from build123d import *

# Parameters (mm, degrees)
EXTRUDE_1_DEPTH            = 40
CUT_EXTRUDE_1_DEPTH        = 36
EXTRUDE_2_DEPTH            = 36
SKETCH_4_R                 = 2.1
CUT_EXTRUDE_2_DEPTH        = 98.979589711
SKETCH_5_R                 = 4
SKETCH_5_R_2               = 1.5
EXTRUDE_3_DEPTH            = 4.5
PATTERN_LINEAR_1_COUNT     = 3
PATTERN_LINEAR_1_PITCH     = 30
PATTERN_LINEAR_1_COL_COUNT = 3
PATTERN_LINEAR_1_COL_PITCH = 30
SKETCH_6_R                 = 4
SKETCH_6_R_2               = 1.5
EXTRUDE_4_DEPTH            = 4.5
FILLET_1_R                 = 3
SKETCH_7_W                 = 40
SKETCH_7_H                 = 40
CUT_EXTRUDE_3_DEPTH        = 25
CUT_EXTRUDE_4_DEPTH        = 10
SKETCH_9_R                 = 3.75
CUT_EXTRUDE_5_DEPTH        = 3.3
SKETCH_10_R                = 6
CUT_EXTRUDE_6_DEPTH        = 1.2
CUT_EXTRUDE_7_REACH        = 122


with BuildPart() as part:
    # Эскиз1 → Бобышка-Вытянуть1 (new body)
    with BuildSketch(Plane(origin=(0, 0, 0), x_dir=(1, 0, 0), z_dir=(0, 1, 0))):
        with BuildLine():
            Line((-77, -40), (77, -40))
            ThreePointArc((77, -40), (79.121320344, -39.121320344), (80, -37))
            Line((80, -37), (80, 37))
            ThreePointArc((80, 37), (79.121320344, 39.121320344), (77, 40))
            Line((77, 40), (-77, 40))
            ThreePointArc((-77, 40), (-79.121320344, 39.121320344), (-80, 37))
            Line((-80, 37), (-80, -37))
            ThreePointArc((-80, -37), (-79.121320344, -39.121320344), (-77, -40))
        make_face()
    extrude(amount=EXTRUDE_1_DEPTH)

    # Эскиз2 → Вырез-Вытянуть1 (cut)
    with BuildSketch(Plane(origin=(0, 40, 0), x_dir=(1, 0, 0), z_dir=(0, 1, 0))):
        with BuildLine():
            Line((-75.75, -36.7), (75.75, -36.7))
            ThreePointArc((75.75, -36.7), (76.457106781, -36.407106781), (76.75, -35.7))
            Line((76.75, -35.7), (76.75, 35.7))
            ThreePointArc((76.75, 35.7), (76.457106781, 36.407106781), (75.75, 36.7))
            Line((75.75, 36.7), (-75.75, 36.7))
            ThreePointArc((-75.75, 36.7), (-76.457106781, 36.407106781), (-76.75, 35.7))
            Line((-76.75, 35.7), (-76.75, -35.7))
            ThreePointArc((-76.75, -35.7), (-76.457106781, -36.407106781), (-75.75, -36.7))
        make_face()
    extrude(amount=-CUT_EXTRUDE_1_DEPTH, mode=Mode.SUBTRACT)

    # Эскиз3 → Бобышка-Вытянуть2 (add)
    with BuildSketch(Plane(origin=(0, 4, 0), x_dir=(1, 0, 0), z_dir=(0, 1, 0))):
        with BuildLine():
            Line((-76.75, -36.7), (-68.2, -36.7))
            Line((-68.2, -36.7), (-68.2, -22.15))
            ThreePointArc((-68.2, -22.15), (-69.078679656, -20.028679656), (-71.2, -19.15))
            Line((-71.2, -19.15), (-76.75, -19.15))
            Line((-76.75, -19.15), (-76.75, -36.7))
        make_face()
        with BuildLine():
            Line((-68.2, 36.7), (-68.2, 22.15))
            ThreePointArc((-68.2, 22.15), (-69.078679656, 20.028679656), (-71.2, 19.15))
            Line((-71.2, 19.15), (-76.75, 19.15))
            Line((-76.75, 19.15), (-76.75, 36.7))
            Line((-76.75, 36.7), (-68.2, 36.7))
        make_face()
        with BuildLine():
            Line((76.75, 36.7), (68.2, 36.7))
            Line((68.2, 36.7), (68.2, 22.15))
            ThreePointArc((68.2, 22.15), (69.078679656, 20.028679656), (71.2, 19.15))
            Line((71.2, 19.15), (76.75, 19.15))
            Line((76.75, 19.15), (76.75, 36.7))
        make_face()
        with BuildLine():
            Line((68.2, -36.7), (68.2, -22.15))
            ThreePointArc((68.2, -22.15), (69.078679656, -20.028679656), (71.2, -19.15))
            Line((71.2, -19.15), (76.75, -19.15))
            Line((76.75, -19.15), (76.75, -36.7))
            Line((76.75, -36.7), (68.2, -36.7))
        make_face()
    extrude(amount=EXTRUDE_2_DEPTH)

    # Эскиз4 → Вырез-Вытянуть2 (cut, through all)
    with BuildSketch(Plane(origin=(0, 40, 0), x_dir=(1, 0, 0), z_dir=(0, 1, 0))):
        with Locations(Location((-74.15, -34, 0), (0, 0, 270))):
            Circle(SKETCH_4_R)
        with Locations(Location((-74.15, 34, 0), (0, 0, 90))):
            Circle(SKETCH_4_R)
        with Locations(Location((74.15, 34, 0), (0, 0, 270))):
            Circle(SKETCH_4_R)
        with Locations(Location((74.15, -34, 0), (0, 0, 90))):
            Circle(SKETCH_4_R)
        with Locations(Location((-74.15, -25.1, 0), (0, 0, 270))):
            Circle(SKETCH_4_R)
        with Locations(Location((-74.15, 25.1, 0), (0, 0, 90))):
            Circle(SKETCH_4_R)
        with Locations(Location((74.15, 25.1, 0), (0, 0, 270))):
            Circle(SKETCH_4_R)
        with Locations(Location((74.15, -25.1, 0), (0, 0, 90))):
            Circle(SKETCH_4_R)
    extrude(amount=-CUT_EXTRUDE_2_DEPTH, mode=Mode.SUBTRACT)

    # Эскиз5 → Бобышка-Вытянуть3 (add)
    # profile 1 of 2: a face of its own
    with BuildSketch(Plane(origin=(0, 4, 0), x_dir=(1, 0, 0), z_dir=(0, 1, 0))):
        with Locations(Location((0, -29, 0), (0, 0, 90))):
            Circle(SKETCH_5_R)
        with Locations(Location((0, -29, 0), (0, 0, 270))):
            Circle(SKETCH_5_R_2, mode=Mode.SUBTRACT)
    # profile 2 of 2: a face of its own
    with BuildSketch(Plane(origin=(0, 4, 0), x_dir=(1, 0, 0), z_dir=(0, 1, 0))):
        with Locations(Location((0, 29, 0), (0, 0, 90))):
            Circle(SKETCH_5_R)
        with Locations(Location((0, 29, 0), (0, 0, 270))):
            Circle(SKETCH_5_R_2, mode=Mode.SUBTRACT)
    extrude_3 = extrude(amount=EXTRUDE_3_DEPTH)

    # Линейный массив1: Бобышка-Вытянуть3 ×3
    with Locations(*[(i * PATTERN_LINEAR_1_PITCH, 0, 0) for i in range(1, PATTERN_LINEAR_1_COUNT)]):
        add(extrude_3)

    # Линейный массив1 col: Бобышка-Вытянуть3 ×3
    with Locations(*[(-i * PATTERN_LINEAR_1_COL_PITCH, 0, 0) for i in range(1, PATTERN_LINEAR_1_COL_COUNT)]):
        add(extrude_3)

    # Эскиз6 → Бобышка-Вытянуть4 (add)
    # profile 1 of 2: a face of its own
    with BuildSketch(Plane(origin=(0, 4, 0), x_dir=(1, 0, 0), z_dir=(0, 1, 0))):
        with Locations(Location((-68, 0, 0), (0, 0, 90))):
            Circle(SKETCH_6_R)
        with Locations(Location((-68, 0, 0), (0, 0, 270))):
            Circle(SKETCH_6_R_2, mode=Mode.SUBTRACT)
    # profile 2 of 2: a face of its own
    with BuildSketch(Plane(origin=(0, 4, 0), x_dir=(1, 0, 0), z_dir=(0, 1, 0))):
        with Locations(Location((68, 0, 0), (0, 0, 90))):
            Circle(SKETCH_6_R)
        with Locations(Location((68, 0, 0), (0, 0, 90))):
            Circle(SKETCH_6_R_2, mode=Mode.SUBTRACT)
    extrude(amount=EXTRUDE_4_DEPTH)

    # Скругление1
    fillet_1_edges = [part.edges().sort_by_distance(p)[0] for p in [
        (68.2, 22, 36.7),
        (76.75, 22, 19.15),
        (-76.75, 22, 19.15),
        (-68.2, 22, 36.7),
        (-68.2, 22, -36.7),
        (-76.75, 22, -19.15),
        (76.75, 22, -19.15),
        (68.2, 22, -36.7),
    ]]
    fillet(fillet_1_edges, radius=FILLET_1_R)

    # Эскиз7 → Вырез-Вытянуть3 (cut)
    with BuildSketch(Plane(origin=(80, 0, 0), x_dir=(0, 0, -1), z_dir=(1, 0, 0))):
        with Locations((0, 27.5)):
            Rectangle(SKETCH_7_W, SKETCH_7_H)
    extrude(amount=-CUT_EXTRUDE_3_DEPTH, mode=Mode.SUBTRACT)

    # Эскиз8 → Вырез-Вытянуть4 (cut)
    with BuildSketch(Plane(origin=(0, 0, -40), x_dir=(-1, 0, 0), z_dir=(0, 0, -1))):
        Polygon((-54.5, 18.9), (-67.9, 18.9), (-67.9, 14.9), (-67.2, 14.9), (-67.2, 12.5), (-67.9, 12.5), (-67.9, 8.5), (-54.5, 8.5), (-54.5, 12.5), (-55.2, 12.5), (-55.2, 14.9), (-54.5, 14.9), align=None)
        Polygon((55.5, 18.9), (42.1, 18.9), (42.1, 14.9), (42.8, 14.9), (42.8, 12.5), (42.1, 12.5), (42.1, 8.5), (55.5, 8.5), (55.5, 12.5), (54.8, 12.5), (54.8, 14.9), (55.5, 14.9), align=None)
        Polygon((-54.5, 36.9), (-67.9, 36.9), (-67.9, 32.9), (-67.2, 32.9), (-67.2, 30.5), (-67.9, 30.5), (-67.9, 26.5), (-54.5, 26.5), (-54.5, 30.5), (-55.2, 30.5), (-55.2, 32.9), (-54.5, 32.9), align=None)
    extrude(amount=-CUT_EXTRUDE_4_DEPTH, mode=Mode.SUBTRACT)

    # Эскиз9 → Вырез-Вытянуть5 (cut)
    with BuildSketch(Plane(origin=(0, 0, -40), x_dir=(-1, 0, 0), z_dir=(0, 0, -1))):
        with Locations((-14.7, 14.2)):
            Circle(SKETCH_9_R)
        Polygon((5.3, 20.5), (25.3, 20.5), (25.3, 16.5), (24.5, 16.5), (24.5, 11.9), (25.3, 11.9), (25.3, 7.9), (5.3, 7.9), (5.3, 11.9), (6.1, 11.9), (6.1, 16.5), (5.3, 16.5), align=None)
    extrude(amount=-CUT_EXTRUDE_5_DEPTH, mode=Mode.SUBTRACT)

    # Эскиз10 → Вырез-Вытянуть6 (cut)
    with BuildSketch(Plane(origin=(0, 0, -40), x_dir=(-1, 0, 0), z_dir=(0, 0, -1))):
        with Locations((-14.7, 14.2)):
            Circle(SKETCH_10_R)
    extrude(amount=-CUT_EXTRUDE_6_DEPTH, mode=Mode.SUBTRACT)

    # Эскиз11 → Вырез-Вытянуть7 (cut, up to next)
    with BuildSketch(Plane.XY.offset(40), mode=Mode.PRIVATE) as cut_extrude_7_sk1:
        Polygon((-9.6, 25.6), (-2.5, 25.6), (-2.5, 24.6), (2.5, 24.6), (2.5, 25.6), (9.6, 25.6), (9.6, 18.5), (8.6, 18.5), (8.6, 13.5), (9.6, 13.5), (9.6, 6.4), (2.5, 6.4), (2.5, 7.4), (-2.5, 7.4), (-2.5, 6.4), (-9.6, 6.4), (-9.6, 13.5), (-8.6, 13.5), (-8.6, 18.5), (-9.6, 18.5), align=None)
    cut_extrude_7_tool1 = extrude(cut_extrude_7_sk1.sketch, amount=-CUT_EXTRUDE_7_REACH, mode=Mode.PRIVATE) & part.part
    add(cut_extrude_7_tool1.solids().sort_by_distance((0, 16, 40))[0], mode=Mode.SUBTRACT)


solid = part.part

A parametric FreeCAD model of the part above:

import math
import FreeCAD as App
import Part
import Sketcher
from FreeCAD import Vector


def edges_at(feature, points):
    """Names of the edges that pass closest to the given points."""
    edges = feature.Shape.Edges
    near = lambda p: min(range(len(edges)), key=lambda i: edges[i].distToShape(Part.Vertex(*p))[0])
    return sorted({f"Edge{near(p) + 1}" for p in points})


def add_polygon(sketch, points):
    """Adds a closed chain of lines whose ends are joined by coincident constraints."""
    first, n = sketch.GeometryCount, len(points)
    for a, b in zip(points, points[1:] + points[:1]):
        sketch.addGeometry(Part.LineSegment(App.Vector(*a, 0), App.Vector(*b, 0)), False)
    for i in range(n):
        sketch.addConstraint(Sketcher.Constraint("Coincident", first + i, 2, first + (i + 1) % n, 1))

doc = App.newDocument("Part")
body = doc.addObject("PartDesign::Body", "Body")

# Sketch on XZ plane
sketch1 = body.newObject("Sketcher::SketchObject", "Sketch")
sketch1.AttachmentSupport = (doc.getObject("XZ_Plane"), [""])
sketch1.MapMode = "FlatFace"
sketch1.addGeometry(Part.LineSegment(Vector(-77, 40, 0), Vector(77, 40, 0)), False)
sketch1.addGeometry(Part.ArcOfCircle(Part.Circle(Vector(77, 37, 0), Vector(0, 0, 1), 3), math.radians(0), math.radians(90)), False)
sketch1.addGeometry(Part.LineSegment(Vector(80, 37, 0), Vector(80, -37, 0)), False)
sketch1.addGeometry(Part.ArcOfCircle(Part.Circle(Vector(77, -37, 0), Vector(0, 0, 1), 3), math.radians(-90), math.radians(0)), False)
sketch1.addGeometry(Part.LineSegment(Vector(77, -40, 0), Vector(-77, -40, 0)), False)
sketch1.addGeometry(Part.ArcOfCircle(Part.Circle(Vector(-77, -37, 0), Vector(0, 0, 1), 3), math.radians(180), math.radians(270)), False)
sketch1.addGeometry(Part.LineSegment(Vector(-80, -37, 0), Vector(-80, 37, 0)), False)
sketch1.addGeometry(Part.ArcOfCircle(Part.Circle(Vector(-77, 37, 0), Vector(0, 0, 1), 3), math.radians(90), math.radians(180)), False)
sketch1.addConstraint(Sketcher.Constraint("Tangent", 0, 2, 1, 2))
sketch1.addConstraint(Sketcher.Constraint("Tangent", 1, 1, 2, 1))
sketch1.addConstraint(Sketcher.Constraint("Tangent", 2, 2, 3, 2))
sketch1.addConstraint(Sketcher.Constraint("Tangent", 3, 1, 4, 1))
sketch1.addConstraint(Sketcher.Constraint("Tangent", 4, 2, 5, 2))
sketch1.addConstraint(Sketcher.Constraint("Tangent", 5, 1, 6, 1))
sketch1.addConstraint(Sketcher.Constraint("Tangent", 6, 2, 7, 2))
sketch1.addConstraint(Sketcher.Constraint("Tangent", 7, 1, 0, 1))
sketch1.addConstraint(Sketcher.Constraint("Horizontal", 0))
sketch1.addConstraint(Sketcher.Constraint("Vertical", 2))
sketch1.addConstraint(Sketcher.Constraint("Horizontal", 4))
sketch1.addConstraint(Sketcher.Constraint("Vertical", 6))
sketch1.addConstraint(Sketcher.Constraint("Equal", 1, 3))
sketch1.addConstraint(Sketcher.Constraint("Equal", 3, 5))
sketch1.addConstraint(Sketcher.Constraint("Equal", 5, 7))
sketch1.addConstraint(Sketcher.Constraint("Symmetric", 1, 3, 5, 3, -1, 1))
sketch1.addConstraint(Sketcher.Constraint("Radius", 1, 3.0))
sketch1.addConstraint(Sketcher.Constraint("DistanceX", 0, 1, 0, 2, 154.0))
sketch1.addConstraint(Sketcher.Constraint("DistanceY", 2, 2, 2, 1, 74.0))
pad1 = body.newObject("PartDesign::Pad", "Pad")
pad1.Profile = sketch1
pad1.Length = 40
pad1.Reversed = True

# Sketch on XZ plane
sketch2 = body.newObject("Sketcher::SketchObject", "Sketch001")
sketch2.AttachmentSupport = (doc.getObject("XZ_Plane"), [""])
sketch2.MapMode = "FlatFace"
sketch2.AttachmentOffset = App.Placement(Vector(0, 0, -40), App.Rotation())
sketch2.addGeometry(Part.LineSegment(Vector(-75.8, 36.7, 0), Vector(75.8, 36.7, 0)), False)
sketch2.addGeometry(Part.ArcOfCircle(Part.Circle(Vector(75.7, 35.7, 0), Vector(0, 0, 1), 1), math.radians(0), math.radians(90)), False)
sketch2.addGeometry(Part.LineSegment(Vector(76.8, 35.7, 0), Vector(76.8, -35.7, 0)), False)
sketch2.addGeometry(Part.ArcOfCircle(Part.Circle(Vector(75.7, -35.7, 0), Vector(0, 0, 1), 1), math.radians(-90), math.radians(0)), False)
sketch2.addGeometry(Part.LineSegment(Vector(75.8, -36.7, 0), Vector(-75.8, -36.7, 0)), False)
sketch2.addGeometry(Part.ArcOfCircle(Part.Circle(Vector(-75.7, -35.7, 0), Vector(0, 0, 1), 1), math.radians(-180), math.radians(-90)), False)
sketch2.addGeometry(Part.LineSegment(Vector(-76.8, -35.7, 0), Vector(-76.8, 35.7, 0)), False)
sketch2.addGeometry(Part.ArcOfCircle(Part.Circle(Vector(-75.7, 35.7, 0), Vector(0, 0, 1), 1), math.radians(90), math.radians(180)), False)
sketch2.addConstraint(Sketcher.Constraint("Tangent", 0, 2, 1, 2))
sketch2.addConstraint(Sketcher.Constraint("Tangent", 1, 1, 2, 1))
sketch2.addConstraint(Sketcher.Constraint("Tangent", 2, 2, 3, 2))
sketch2.addConstraint(Sketcher.Constraint("Tangent", 3, 1, 4, 1))
sketch2.addConstraint(Sketcher.Constraint("Tangent", 4, 2, 5, 2))
sketch2.addConstraint(Sketcher.Constraint("Tangent", 5, 1, 6, 1))
sketch2.addConstraint(Sketcher.Constraint("Tangent", 6, 2, 7, 2))
sketch2.addConstraint(Sketcher.Constraint("Tangent", 7, 1, 0, 1))
sketch2.addConstraint(Sketcher.Constraint("Horizontal", 0))
sketch2.addConstraint(Sketcher.Constraint("Vertical", 2))
sketch2.addConstraint(Sketcher.Constraint("Horizontal", 4))
sketch2.addConstraint(Sketcher.Constraint("Vertical", 6))
sketch2.addConstraint(Sketcher.Constraint("Equal", 1, 3))
sketch2.addConstraint(Sketcher.Constraint("Equal", 3, 5))
sketch2.addConstraint(Sketcher.Constraint("Equal", 5, 7))
sketch2.addConstraint(Sketcher.Constraint("Symmetric", 1, 3, 5, 3, -1, 1))
sketch2.addConstraint(Sketcher.Constraint("Radius", 1, 1.0))
sketch2.addConstraint(Sketcher.Constraint("DistanceX", 0, 1, 0, 2, 151.5))
sketch2.addConstraint(Sketcher.Constraint("DistanceY", 2, 2, 2, 1, 71.4))
pocket1 = body.newObject("PartDesign::Pocket", "Pocket")
pocket1.Profile = sketch2
pocket1.Length = 36
pocket1.Reversed = True

# Sketch on XZ plane
sketch3 = body.newObject("Sketcher::SketchObject", "Sketch002")
sketch3.AttachmentSupport = (doc.getObject("XZ_Plane"), [""])
sketch3.MapMode = "FlatFace"
sketch3.AttachmentOffset = App.Placement(Vector(0, 0, -4), App.Rotation())
sketch3.addGeometry(Part.LineSegment(Vector(-76.8, 36.7, 0), Vector(-68.2, 36.7, 0)), False)
sketch3.addGeometry(Part.LineSegment(Vector(-68.2, 36.7, 0), Vector(-68.2, 22.1, 0)), False)
sketch3.addGeometry(Part.ArcOfCircle(Part.Circle(Vector(-71.2, 22.1, 0), Vector(0, 0, 1), 3), math.radians(-90), math.radians(0)), False)
sketch3.addGeometry(Part.LineSegment(Vector(-71.2, 19.1, 0), Vector(-76.8, 19.1, 0)), False)
sketch3.addGeometry(Part.LineSegment(Vector(-76.8, 19.1, 0), Vector(-76.8, 36.7, 0)), False)
sketch3.addGeometry(Part.LineSegment(Vector(-68.2, -22.1, 0), Vector(-68.2, -36.7, 0)), False)
sketch3.addGeometry(Part.LineSegment(Vector(-68.2, -36.7, 0), Vector(-76.8, -36.7, 0)), False)
sketch3.addGeometry(Part.LineSegment(Vector(-76.8, -36.7, 0), Vector(-76.8, -19.1, 0)), False)
sketch3.addGeometry(Part.LineSegment(Vector(-76.8, -19.1, 0), Vector(-71.2, -19.1, 0)), False)
sketch3.addGeometry(Part.ArcOfCircle(Part.Circle(Vector(-71.2, -22.1, 0), Vector(0, 0, 1), 3), math.radians(0), math.radians(90)), False)
sketch3.addGeometry(Part.LineSegment(Vector(76.8, -36.7, 0), Vector(68.2, -36.7, 0)), False)
sketch3.addGeometry(Part.LineSegment(Vector(68.2, -36.7, 0), Vector(68.2, -22.1, 0)), False)
sketch3.addGeometry(Part.ArcOfCircle(Part.Circle(Vector(71.2, -22.1, 0), Vector(0, 0, 1), 3), math.radians(90), math.radians(180)), False)
sketch3.addGeometry(Part.LineSegment(Vector(71.2, -19.1, 0), Vector(76.8, -19.1, 0)), False)
sketch3.addGeometry(Part.LineSegment(Vector(76.8, -19.1, 0), Vector(76.8, -36.7, 0)), False)
sketch3.addGeometry(Part.LineSegment(Vector(68.2, 22.1, 0), Vector(68.2, 36.7, 0)), False)
sketch3.addGeometry(Part.LineSegment(Vector(68.2, 36.7, 0), Vector(76.8, 36.7, 0)), False)
sketch3.addGeometry(Part.LineSegment(Vector(76.8, 36.7, 0), Vector(76.8, 19.1, 0)), False)
sketch3.addGeometry(Part.LineSegment(Vector(76.8, 19.1, 0), Vector(71.2, 19.1, 0)), False)
sketch3.addGeometry(Part.ArcOfCircle(Part.Circle(Vector(71.2, 22.1, 0), Vector(0, 0, 1), 3), math.radians(180), math.radians(270)), False)
sketch3.addConstraint(Sketcher.Constraint("Coincident", 0, 2, 1, 1))
sketch3.addConstraint(Sketcher.Constraint("Tangent", 1, 2, 2, 2))
sketch3.addConstraint(Sketcher.Constraint("Tangent", 2, 1, 3, 1))
sketch3.addConstraint(Sketcher.Constraint("Coincident", 3, 2, 4, 1))
sketch3.addConstraint(Sketcher.Constraint("Coincident", 4, 2, 0, 1))
sketch3.addConstraint(Sketcher.Constraint("Coincident", 5, 2, 6, 1))
sketch3.addConstraint(Sketcher.Constraint("Coincident", 6, 2, 7, 1))
sketch3.addConstraint(Sketcher.Constraint("Coincident", 7, 2, 8, 1))
sketch3.addConstraint(Sketcher.Constraint("Tangent", 8, 2, 9, 2))
sketch3.addConstraint(Sketcher.Constraint("Tangent", 9, 1, 5, 1))
sketch3.addConstraint(Sketcher.Constraint("Coincident", 10, 2, 11, 1))
sketch3.addConstraint(Sketcher.Constraint("Tangent", 11, 2, 12, 2))
sketch3.addConstraint(Sketcher.Constraint("Tangent", 12, 1, 13, 1))
sketch3.addConstraint(Sketcher.Constraint("Coincident", 13, 2, 14, 1))
sketch3.addConstraint(Sketcher.Constraint("Coincident", 14, 2, 10, 1))
sketch3.addConstraint(Sketcher.Constraint("Coincident", 15, 2, 16, 1))
sketch3.addConstraint(Sketcher.Constraint("Coincident", 16, 2, 17, 1))
sketch3.addConstraint(Sketcher.Constraint("Coincident", 17, 2, 18, 1))
sketch3.addConstraint(Sketcher.Constraint("Tangent", 18, 2, 19, 2))
sketch3.addConstraint(Sketcher.Constraint("Tangent", 19, 1, 15, 1))
sketch3.addConstraint(Sketcher.Constraint("Horizontal", 0))
sketch3.addConstraint(Sketcher.Constraint("Vertical", 1))
sketch3.addConstraint(Sketcher.Constraint("Horizontal", 3))
sketch3.addConstraint(Sketcher.Constraint("Vertical", 4))
sketch3.addConstraint(Sketcher.Constraint("Vertical", 5))
sketch3.addConstraint(Sketcher.Constraint("Horizontal", 6))
sketch3.addConstraint(Sketcher.Constraint("Vertical", 7))
sketch3.addConstraint(Sketcher.Constraint("Horizontal", 8))
sketch3.addConstraint(Sketcher.Constraint("Horizontal", 10))
sketch3.addConstraint(Sketcher.Constraint("Vertical", 11))
sketch3.addConstraint(Sketcher.Constraint("Horizontal", 13))
sketch3.addConstraint(Sketcher.Constraint("Vertical", 14))
sketch3.addConstraint(Sketcher.Constraint("Vertical", 15))
sketch3.addConstraint(Sketcher.Constraint("Horizontal", 16))
sketch3.addConstraint(Sketcher.Constraint("Vertical", 17))
sketch3.addConstraint(Sketcher.Constraint("Horizontal", 18))
sketch3.addConstraint(Sketcher.Constraint("Equal", 2, 9))
sketch3.addConstraint(Sketcher.Constraint("Equal", 9, 12))
sketch3.addConstraint(Sketcher.Constraint("Equal", 12, 19))
sketch3.addConstraint(Sketcher.Constraint("Symmetric", 2, 3, 12, 3, -1, 1))
sketch3.addConstraint(Sketcher.Constraint("Symmetric", 9, 3, 19, 3, -1, 1))
sketch3.addConstraint(Sketcher.Constraint("Symmetric", 4, 2, 14, 2, -1, 1))
sketch3.addConstraint(Sketcher.Constraint("Symmetric", 6, 2, 16, 2, -1, 1))
sketch3.addConstraint(Sketcher.Constraint("Symmetric", 9, 3, 12, 3, -2))
sketch3.addConstraint(Sketcher.Constraint("Symmetric", 6, 2, 14, 2, -2))
sketch3.addConstraint(Sketcher.Constraint("Radius", 2, 3.0))
sketch3.addConstraint(Sketcher.Constraint("DistanceX", 0, 1, 0, 2, 8.55))
sketch3.addConstraint(Sketcher.Constraint("DistanceY", 1, 2, 1, 1, 14.55))
sketch3.addConstraint(Sketcher.Constraint("DistanceX", 2, 3, -1, 1, 71.2))
sketch3.addConstraint(Sketcher.Constraint("DistanceY", -1, 1, 0, 2, 36.7))
pad2 = body.newObject("PartDesign::Pad", "Pad001")
pad2.Profile = sketch3
pad2.Length = 36
pad2.Reversed = True

# Sketch on XZ plane
sketch4 = body.newObject("Sketcher::SketchObject", "Sketch003")
sketch4.AttachmentSupport = (doc.getObject("XZ_Plane"), [""])
sketch4.MapMode = "FlatFace"
sketch4.AttachmentOffset = App.Placement(Vector(0, 0, -40), App.Rotation())
sketch4.addGeometry(Part.Circle(Vector(-74.2, 34, 0), Vector(0, 0, 1), 2.1), False)
sketch4.addGeometry(Part.Circle(Vector(-74.2, -34, 0), Vector(0, 0, 1), 2.1), False)
sketch4.addGeometry(Part.Circle(Vector(74.2, -34, 0), Vector(0, 0, 1), 2.1), False)
sketch4.addGeometry(Part.Circle(Vector(74.2, 34, 0), Vector(0, 0, 1), 2.1), False)
sketch4.addGeometry(Part.Circle(Vector(-74.2, 25.1, 0), Vector(0, 0, 1), 2.1), False)
sketch4.addGeometry(Part.Circle(Vector(-74.2, -25.1, 0), Vector(0, 0, 1), 2.1), False)
sketch4.addGeometry(Part.Circle(Vector(74.2, -25.1, 0), Vector(0, 0, 1), 2.1), False)
sketch4.addGeometry(Part.Circle(Vector(74.2, 25.1, 0), Vector(0, 0, 1), 2.1), False)
sketch4.addConstraint(Sketcher.Constraint("Equal", 0, 1))
sketch4.addConstraint(Sketcher.Constraint("Equal", 1, 2))
sketch4.addConstraint(Sketcher.Constraint("Equal", 2, 3))
sketch4.addConstraint(Sketcher.Constraint("Equal", 3, 4))
sketch4.addConstraint(Sketcher.Constraint("Equal", 4, 5))
sketch4.addConstraint(Sketcher.Constraint("Equal", 5, 6))
sketch4.addConstraint(Sketcher.Constraint("Equal", 6, 7))
sketch4.addConstraint(Sketcher.Constraint("Symmetric", 0, 3, 2, 3, -1, 1))
sketch4.addConstraint(Sketcher.Constraint("Symmetric", 1, 3, 3, 3, -1, 1))
sketch4.addConstraint(Sketcher.Constraint("Symmetric", 4, 3, 6, 3, -1, 1))
sketch4.addConstraint(Sketcher.Constraint("Symmetric", 5, 3, 7, 3, -1, 1))
sketch4.addConstraint(Sketcher.Constraint("Symmetric", 1, 3, 2, 3, -2))
sketch4.addConstraint(Sketcher.Constraint("Symmetric", 5, 3, 6, 3, -2))
sketch4.addConstraint(Sketcher.Constraint("Vertical", 1, 3, 4, 3))
sketch4.addConstraint(Sketcher.Constraint("Diameter", 0, 4.2))
sketch4.addConstraint(Sketcher.Constraint("DistanceY", -1, 1, 0, 3, 34.0))
sketch4.addConstraint(Sketcher.Constraint("DistanceY", -1, 1, 4, 3, 25.1))
sketch4.addConstraint(Sketcher.Constraint("DistanceX", 1, 3, 2, 3, 148.3))
pocket2 = body.newObject("PartDesign::Pocket", "Pocket001")
pocket2.Profile = sketch4
pocket2.Type = "ThroughAll"
pocket2.Reversed = True

# Sketch on XZ plane
sketch5 = body.newObject("Sketcher::SketchObject", "Sketch004")
sketch5.AttachmentSupport = (doc.getObject("XZ_Plane"), [""])
sketch5.MapMode = "FlatFace"
sketch5.AttachmentOffset = App.Placement(Vector(0, 0, -4), App.Rotation())
sketch5.addGeometry(Part.Circle(Vector(0, 29, 0), Vector(0, 0, 1), 4), False)
sketch5.addGeometry(Part.Circle(Vector(0, 29, 0), Vector(0, 0, 1), 1.5), False)
sketch5.addGeometry(Part.Circle(Vector(0, -29, 0), Vector(0, 0, 1), 4), False)
sketch5.addGeometry(Part.Circle(Vector(0, -29, 0), Vector(0, 0, 1), 1.5), False)
sketch5.addConstraint(Sketcher.Constraint("Coincident", 1, 3, 0, 3))
sketch5.addConstraint(Sketcher.Constraint("Coincident", 3, 3, 2, 3))
sketch5.addConstraint(Sketcher.Constraint("Equal", 0, 2))
sketch5.addConstraint(Sketcher.Constraint("Equal", 1, 3))
sketch5.addConstraint(Sketcher.Constraint("Symmetric", 0, 3, 2, 3, -1, 1))
sketch5.addConstraint(Sketcher.Constraint("PointOnObject", 0, 3, -2))
sketch5.addConstraint(Sketcher.Constraint("Diameter", 0, 8.0))
sketch5.addConstraint(Sketcher.Constraint("Diameter", 1, 3.0))
sketch5.addConstraint(Sketcher.Constraint("DistanceY", -1, 1, 0, 3, 29.0))
pad3 = body.newObject("PartDesign::Pad", "Pad002")
pad3.Profile = sketch5
pad3.Length = 4.5
pad3.Reversed = True
doc.recompute()

linearpattern = body.newObject("PartDesign::LinearPattern", "LinearPattern")
linearpattern.Originals = [pad3]
linearpattern.Direction = (doc.getObject("X_Axis"), [""])
linearpattern.Mode = "offset"
linearpattern.Offset = 30
linearpattern.Occurrences = 3
body.Tip = linearpattern
doc.recompute()

linearpattern2 = body.newObject("PartDesign::LinearPattern", "LinearPattern001")
linearpattern2.Originals = [pad3]
linearpattern2.Direction = (doc.getObject("X_Axis"), [""])
linearpattern2.Mode = "offset"
linearpattern2.Offset = 30
linearpattern2.Occurrences = 3
linearpattern2.Reversed = True
body.Tip = linearpattern2

# Sketch on XZ plane
sketch6 = body.newObject("Sketcher::SketchObject", "Sketch005")
sketch6.AttachmentSupport = (doc.getObject("XZ_Plane"), [""])
sketch6.MapMode = "FlatFace"
sketch6.AttachmentOffset = App.Placement(Vector(0, 0, -4), App.Rotation())
sketch6.addGeometry(Part.Circle(Vector(-68, 0, 0), Vector(0, 0, 1), 4), False)
sketch6.addGeometry(Part.Circle(Vector(-68, 0, 0), Vector(0, 0, 1), 1.5), False)
sketch6.addGeometry(Part.Circle(Vector(68, 0, 0), Vector(0, 0, 1), 4), False)
sketch6.addGeometry(Part.Circle(Vector(68, 0, 0), Vector(0, 0, 1), 1.5), False)
sketch6.addConstraint(Sketcher.Constraint("Coincident", 1, 3, 0, 3))
sketch6.addConstraint(Sketcher.Constraint("Coincident", 3, 3, 2, 3))
sketch6.addConstraint(Sketcher.Constraint("Equal", 0, 2))
sketch6.addConstraint(Sketcher.Constraint("Equal", 1, 3))
sketch6.addConstraint(Sketcher.Constraint("Symmetric", 0, 3, 2, 3, -1, 1))
sketch6.addConstraint(Sketcher.Constraint("PointOnObject", 0, 3, -1))
sketch6.addConstraint(Sketcher.Constraint("Diameter", 0, 8.0))
sketch6.addConstraint(Sketcher.Constraint("Diameter", 1, 3.0))
sketch6.addConstraint(Sketcher.Constraint("DistanceX", 0, 3, -1, 1, 68.0))
pad4 = body.newObject("PartDesign::Pad", "Pad003")
pad4.Profile = sketch6
pad4.Length = 4.5
pad4.Reversed = True
doc.recompute()

fillet = body.newObject("PartDesign::Fillet", "Fillet")
fillet.Base = (pad4, edges_at(pad4, [
    (68.2, 22, 36.7),
    (76.75, 22, 19.15),
    (-76.75, 22, 19.15),
    (-68.2, 22, 36.7),
    (-68.2, 22, -36.7),
    (-76.75, 22, -19.15),
    (76.75, 22, -19.15),
    (68.2, 22, -36.7),
]))
fillet.Radius = 3

# Sketch on YZ plane
sketch7 = body.newObject("Sketcher::SketchObject", "Sketch006")
sketch7.AttachmentSupport = (doc.getObject("YZ_Plane"), [""])
sketch7.MapMode = "FlatFace"
sketch7.AttachmentOffset = App.Placement(Vector(0, 0, 80), App.Rotation())
add_polygon(sketch7, [(48, 20), (8, 20), (8, -20), (48, -20)])  # lines 0-3
sketch7.addConstraint(Sketcher.Constraint("Horizontal", 0))
sketch7.addConstraint(Sketcher.Constraint("Vertical", 1))
sketch7.addConstraint(Sketcher.Constraint("Horizontal", 2))
sketch7.addConstraint(Sketcher.Constraint("Vertical", 3))
sketch7.addConstraint(Sketcher.Constraint("Equal", 2, 1))
sketch7.addConstraint(Sketcher.Constraint("DistanceX", 0, 2, 0, 1, 40.0))
sketch7.addConstraint(Sketcher.Constraint("DistanceY", -1, 1, 0, 2, 20.0))
sketch7.addConstraint(Sketcher.Constraint("DistanceX", -1, 1, 0, 2, 7.5))
pocket3 = body.newObject("PartDesign::Pocket", "Pocket002")
pocket3.Profile = sketch7
pocket3.Length = 25

# Sketch on XY plane
sketch8 = body.newObject("Sketcher::SketchObject", "Sketch007")
sketch8.AttachmentSupport = (doc.getObject("XY_Plane"), [""])
sketch8.MapMode = "FlatFace"
sketch8.AttachmentOffset = App.Placement(Vector(0, 0, -40), App.Rotation())
add_polygon(sketch8, [(54.5, 18.9), (67.9, 18.9), (67.9, 14.9), (67.2, 14.9), (67.2, 12.5), (67.9, 12.5), (67.9, 8.5), (54.5, 8.5), (54.5, 12.5), (55.2, 12.5), (55.2, 14.9), (54.5, 14.9)])  # lines 0-11
add_polygon(sketch8, [(-55.5, 18.9), (-42.1, 18.9), (-42.1, 14.9), (-42.8, 14.9), (-42.8, 12.5), (-42.1, 12.5), (-42.1, 8.5), (-55.5, 8.5), (-55.5, 12.5), (-54.8, 12.5), (-54.8, 14.9), (-55.5, 14.9)])  # lines 12-23
add_polygon(sketch8, [(54.5, 36.9), (67.9, 36.9), (67.9, 32.9), (67.2, 32.9), (67.2, 30.5), (67.9, 30.5), (67.9, 26.5), (54.5, 26.5), (54.5, 30.5), (55.2, 30.5), (55.2, 32.9), (54.5, 32.9)])  # lines 24-35
sketch8.addConstraint(Sketcher.Constraint("Horizontal", 0))
sketch8.addConstraint(Sketcher.Constraint("Vertical", 1))
sketch8.addConstraint(Sketcher.Constraint("Horizontal", 2))
sketch8.addConstraint(Sketcher.Constraint("Vertical", 3))
sketch8.addConstraint(Sketcher.Constraint("Horizontal", 4))
sketch8.addConstraint(Sketcher.Constraint("Vertical", 5))
sketch8.addConstraint(Sketcher.Constraint("Horizontal", 6))
sketch8.addConstraint(Sketcher.Constraint("Vertical", 7))
sketch8.addConstraint(Sketcher.Constraint("Horizontal", 8))
sketch8.addConstraint(Sketcher.Constraint("Vertical", 9))
sketch8.addConstraint(Sketcher.Constraint("Horizontal", 10))
sketch8.addConstraint(Sketcher.Constraint("Vertical", 11))
sketch8.addConstraint(Sketcher.Constraint("Horizontal", 12))
sketch8.addConstraint(Sketcher.Constraint("Vertical", 13))
sketch8.addConstraint(Sketcher.Constraint("Horizontal", 14))
sketch8.addConstraint(Sketcher.Constraint("Vertical", 15))
sketch8.addConstraint(Sketcher.Constraint("Horizontal", 16))
sketch8.addConstraint(Sketcher.Constraint("Vertical", 17))
sketch8.addConstraint(Sketcher.Constraint("Horizontal", 18))
sketch8.addConstraint(Sketcher.Constraint("Vertical", 19))
sketch8.addConstraint(Sketcher.Constraint("Horizontal", 20))
sketch8.addConstraint(Sketcher.Constraint("Vertical", 21))
sketch8.addConstraint(Sketcher.Constraint("Horizontal", 22))
sketch8.addConstraint(Sketcher.Constraint("Vertical", 23))
sketch8.addConstraint(Sketcher.Constraint("Horizontal", 24))
sketch8.addConstraint(Sketcher.Constraint("Vertical", 25))
sketch8.addConstraint(Sketcher.Constraint("Horizontal", 26))
sketch8.addConstraint(Sketcher.Constraint("Vertical", 27))
sketch8.addConstraint(Sketcher.Constraint("Horizontal", 28))
sketch8.addConstraint(Sketcher.Constraint("Vertical", 29))
sketch8.addConstraint(Sketcher.Constraint("Horizontal", 30))
sketch8.addConstraint(Sketcher.Constraint("Vertical", 31))
sketch8.addConstraint(Sketcher.Constraint("Horizontal", 32))
sketch8.addConstraint(Sketcher.Constraint("Vertical", 33))
sketch8.addConstraint(Sketcher.Constraint("Horizontal", 34))
sketch8.addConstraint(Sketcher.Constraint("Vertical", 35))
sketch8.addConstraint(Sketcher.Constraint("Horizontal", 4, 2, 7, 2))
sketch8.addConstraint(Sketcher.Constraint("Horizontal", 2, 2, 9, 2))
sketch8.addConstraint(Sketcher.Constraint("Horizontal", 11, 2, 12, 2))
sketch8.addConstraint(Sketcher.Constraint("Horizontal", 10, 2, 13, 2))
sketch8.addConstraint(Sketcher.Constraint("Horizontal", 8, 2, 15, 2))
sketch8.addConstraint(Sketcher.Constraint("Horizontal", 6, 2, 17, 2))
sketch8.addConstraint(Sketcher.Constraint("Horizontal", 16, 2, 19, 2))
sketch8.addConstraint(Sketcher.Constraint("Horizontal", 14, 2, 21, 2))
sketch8.addConstraint(Sketcher.Constraint("Horizontal", 28, 2, 31, 2))
sketch8.addConstraint(Sketcher.Constraint("Horizontal", 26, 2, 33, 2))
sketch8.addConstraint(Sketcher.Constraint("Vertical", 1, 2, 4, 2))
sketch8.addConstraint(Sketcher.Constraint("Vertical", 7, 2, 10, 2))
sketch8.addConstraint(Sketcher.Constraint("Vertical", 13, 2, 16, 2))
sketch8.addConstraint(Sketcher.Constraint("Vertical", 19, 2, 22, 2))
sketch8.addConstraint(Sketcher.Constraint("Vertical", 5, 2, 24, 2))
sketch8.addConstraint(Sketcher.Constraint("Vertical", 3, 2, 26, 2))
sketch8.addConstraint(Sketcher.Constraint("Vertical", 25, 2, 28, 2))
sketch8.addConstraint(Sketcher.Constraint("Vertical", 11, 2, 30, 2))
sketch8.addConstraint(Sketcher.Constraint("Vertical", 9, 2, 32, 2))
sketch8.addConstraint(Sketcher.Constraint("Vertical", 31, 2, 34, 2))
sketch8.addConstraint(Sketcher.Constraint("Equal", 4, 8))
sketch8.addConstraint(Sketcher.Constraint("Equal", 6, 12))
sketch8.addConstraint(Sketcher.Constraint("Equal", 10, 14))
sketch8.addConstraint(Sketcher.Constraint("Equal", 16, 20))
sketch8.addConstraint(Sketcher.Constraint("Equal", 1, 5))
sketch8.addConstraint(Sketcher.Constraint("Equal", 23, 25))
sketch8.addConstraint(Sketcher.Constraint("Equal", 21, 27))
sketch8.addConstraint(Sketcher.Constraint("Equal", 25, 29))
sketch8.addConstraint(Sketcher.Constraint("DistanceY", 1, 2, 1, 1, 4.0))
sketch8.addConstraint(Sketcher.Constraint("DistanceX", 0, 1, 0, 2, 13.4))
sketch8.addConstraint(Sketcher.Constraint("DistanceX", 2, 2, 2, 1, 0.7))
sketch8.addConstraint(Sketcher.Constraint("DistanceY", 3, 2, 3, 1, 2.4))
sketch8.addConstraint(Sketcher.Constraint("DistanceY", 0, 2, 24, 2, 18.0))
sketch8.addConstraint(Sketcher.Constraint("DistanceX", -1, 1, 0, 2, 67.9))
sketch8.addConstraint(Sketcher.Constraint("DistanceY", -1, 1, 0, 2, 18.9))
sketch8.addConstraint(Sketcher.Constraint("DistanceX", 12, 2, -1, 1, 42.1))
pocket4 = body.newObject("PartDesign::Pocket", "Pocket003")
pocket4.Profile = sketch8
pocket4.Length = 10
pocket4.Reversed = True

# Sketch on XY plane
sketch9 = body.newObject("Sketcher::SketchObject", "Sketch008")
sketch9.AttachmentSupport = (doc.getObject("XY_Plane"), [""])
sketch9.MapMode = "FlatFace"
sketch9.AttachmentOffset = App.Placement(Vector(0, 0, -40), App.Rotation())
sketch9.addGeometry(Part.Circle(Vector(14.7, 14.2, 0), Vector(0, 0, 1), 3.8), False)  # 0
add_polygon(sketch9, [(-25.3, 20.5), (-5.3, 20.5), (-5.3, 16.5), (-6.1, 16.5), (-6.1, 11.9), (-5.3, 11.9), (-5.3, 7.9), (-25.3, 7.9), (-25.3, 11.9), (-24.5, 11.9), (-24.5, 16.5), (-25.3, 16.5)])  # lines 1-12
sketch9.addConstraint(Sketcher.Constraint("Horizontal", 1))
sketch9.addConstraint(Sketcher.Constraint("Vertical", 2))
sketch9.addConstraint(Sketcher.Constraint("Horizontal", 3))
sketch9.addConstraint(Sketcher.Constraint("Vertical", 4))
sketch9.addConstraint(Sketcher.Constraint("Horizontal", 5))
sketch9.addConstraint(Sketcher.Constraint("Vertical", 6))
sketch9.addConstraint(Sketcher.Constraint("Horizontal", 7))
sketch9.addConstraint(Sketcher.Constraint("Vertical", 8))
sketch9.addConstraint(Sketcher.Constraint("Horizontal", 9))
sketch9.addConstraint(Sketcher.Constraint("Vertical", 10))
sketch9.addConstraint(Sketcher.Constraint("Horizontal", 11))
sketch9.addConstraint(Sketcher.Constraint("Vertical", 12))
sketch9.addConstraint(Sketcher.Constraint("Horizontal", 5, 2, 8, 2))
sketch9.addConstraint(Sketcher.Constraint("Horizontal", 3, 2, 10, 2))
sketch9.addConstraint(Sketcher.Constraint("Vertical", 2, 2, 5, 2))
sketch9.addConstraint(Sketcher.Constraint("Vertical", 8, 2, 11, 2))
sketch9.addConstraint(Sketcher.Constraint("Equal", 5, 9))
sketch9.addConstraint(Sketcher.Constraint("Equal", 2, 6))
sketch9.addConstraint(Sketcher.Constraint("Diameter", 0, 7.5))
sketch9.addConstraint(Sketcher.Constraint("DistanceX", 1, 1, 1, 2, 20.0))
sketch9.addConstraint(Sketcher.Constraint("DistanceY", 2, 2, 2, 1, 4.0))
sketch9.addConstraint(Sketcher.Constraint("DistanceX", 3, 2, 3, 1, 0.8))
sketch9.addConstraint(Sketcher.Constraint("DistanceY", 4, 2, 4, 1, 4.6))
sketch9.addConstraint(Sketcher.Constraint("DistanceX", 1, 2, 0, 3, 20.0))
sketch9.addConstraint(Sketcher.Constraint("DistanceX", -1, 1, 0, 3, 14.7))
sketch9.addConstraint(Sketcher.Constraint("DistanceY", -1, 1, 0, 3, 14.2))
sketch9.addConstraint(Sketcher.Constraint("DistanceY", -1, 1, 1, 2, 20.5))
pocket5 = body.newObject("PartDesign::Pocket", "Pocket004")
pocket5.Profile = sketch9
pocket5.Length = 3.3
pocket5.Reversed = True

# Sketch on XY plane
sketch10 = body.newObject("Sketcher::SketchObject", "Sketch009")
sketch10.AttachmentSupport = (doc.getObject("XY_Plane"), [""])
sketch10.MapMode = "FlatFace"
sketch10.AttachmentOffset = App.Placement(Vector(0, 0, -40), App.Rotation())
sketch10.addGeometry(Part.Circle(Vector(15, 14, 0), Vector(0, 0, 1), 6), False)
sketch10.addConstraint(Sketcher.Constraint("Diameter", 0, 12.0))
sketch10.addConstraint(Sketcher.Constraint("DistanceX", -1, 1, 0, 3, 14.7))
sketch10.addConstraint(Sketcher.Constraint("DistanceY", -1, 1, 0, 3, 14.2))
pocket6 = body.newObject("PartDesign::Pocket", "Pocket005")
pocket6.Profile = sketch10
pocket6.Length = 1.2
pocket6.Reversed = True

# Sketch on XY plane
sketch11 = body.newObject("Sketcher::SketchObject", "Sketch010")
sketch11.AttachmentSupport = (doc.getObject("XY_Plane"), [""])
sketch11.MapMode = "FlatFace"
sketch11.AttachmentOffset = App.Placement(Vector(0, 0, 40), App.Rotation())
add_polygon(sketch11, [(-2.5, 25.6), (-9.6, 25.6), (-9.6, 18.5), (-8.6, 18.5), (-8.6, 13.5), (-9.6, 13.5), (-9.6, 6.4), (-2.5, 6.4), (-2.5, 7.4), (2.5, 7.4), (2.5, 6.4), (9.6, 6.4), (9.6, 13.5), (8.6, 13.5), (8.6, 18.5), (9.6, 18.5), (9.6, 25.6), (2.5, 25.6), (2.5, 24.6), (-2.5, 24.6)])  # lines 0-19
sketch11.addConstraint(Sketcher.Constraint("Horizontal", 0))
sketch11.addConstraint(Sketcher.Constraint("Vertical", 1))
sketch11.addConstraint(Sketcher.Constraint("Horizontal", 2))
sketch11.addConstraint(Sketcher.Constraint("Vertical", 3))
sketch11.addConstraint(Sketcher.Constraint("Horizontal", 4))
sketch11.addConstraint(Sketcher.Constraint("Vertical", 5))
sketch11.addConstraint(Sketcher.Constraint("Horizontal", 6))
sketch11.addConstraint(Sketcher.Constraint("Vertical", 7))
sketch11.addConstraint(Sketcher.Constraint("Horizontal", 8))
sketch11.addConstraint(Sketcher.Constraint("Vertical", 9))
sketch11.addConstraint(Sketcher.Constraint("Horizontal", 10))
sketch11.addConstraint(Sketcher.Constraint("Vertical", 11))
sketch11.addConstraint(Sketcher.Constraint("Horizontal", 12))
sketch11.addConstraint(Sketcher.Constraint("Vertical", 13))
sketch11.addConstraint(Sketcher.Constraint("Horizontal", 14))
sketch11.addConstraint(Sketcher.Constraint("Vertical", 15))
sketch11.addConstraint(Sketcher.Constraint("Horizontal", 16))
sketch11.addConstraint(Sketcher.Constraint("Vertical", 17))
sketch11.addConstraint(Sketcher.Constraint("Horizontal", 18))
sketch11.addConstraint(Sketcher.Constraint("Vertical", 19))
sketch11.addConstraint(Sketcher.Constraint("Symmetric", 6, 2, 9, 2, -2))
sketch11.addConstraint(Sketcher.Constraint("Symmetric", 4, 2, 11, 2, -2))
sketch11.addConstraint(Sketcher.Constraint("Symmetric", 2, 2, 13, 2, -2))
sketch11.addConstraint(Sketcher.Constraint("Symmetric", 0, 2, 15, 2, -2))
sketch11.addConstraint(Sketcher.Constraint("Vertical", 1, 2, 4, 2))
sketch11.addConstraint(Sketcher.Constraint("Vertical", 9, 2, 16, 2))
sketch11.addConstraint(Sketcher.Constraint("Vertical", 7, 2, 18, 2))
sketch11.addConstraint(Sketcher.Constraint("Equal", 16, 1))
sketch11.addConstraint(Sketcher.Constraint("Equal", 18, 3))
sketch11.addConstraint(Sketcher.Constraint("Equal", 1, 5))
sketch11.addConstraint(Sketcher.Constraint("Equal", 14, 7))
sketch11.addConstraint(Sketcher.Constraint("Equal", 9, 17))
sketch11.addConstraint(Sketcher.Constraint("DistanceX", 2, 1, 2, 2, 1.0))
sketch11.addConstraint(Sketcher.Constraint("DistanceX", 8, 1, 8, 2, 5.0))
sketch11.addConstraint(Sketcher.Constraint("DistanceX", 0, 2, 0, 1, 7.1))
sketch11.addConstraint(Sketcher.Constraint("DistanceY", -1, 1, 0, 2, 25.6))
pocket7 = body.newObject("PartDesign::Pocket", "Pocket006")
pocket7.Profile = sketch11
pocket7.Type = "UpToFirst"

doc.recompute()
